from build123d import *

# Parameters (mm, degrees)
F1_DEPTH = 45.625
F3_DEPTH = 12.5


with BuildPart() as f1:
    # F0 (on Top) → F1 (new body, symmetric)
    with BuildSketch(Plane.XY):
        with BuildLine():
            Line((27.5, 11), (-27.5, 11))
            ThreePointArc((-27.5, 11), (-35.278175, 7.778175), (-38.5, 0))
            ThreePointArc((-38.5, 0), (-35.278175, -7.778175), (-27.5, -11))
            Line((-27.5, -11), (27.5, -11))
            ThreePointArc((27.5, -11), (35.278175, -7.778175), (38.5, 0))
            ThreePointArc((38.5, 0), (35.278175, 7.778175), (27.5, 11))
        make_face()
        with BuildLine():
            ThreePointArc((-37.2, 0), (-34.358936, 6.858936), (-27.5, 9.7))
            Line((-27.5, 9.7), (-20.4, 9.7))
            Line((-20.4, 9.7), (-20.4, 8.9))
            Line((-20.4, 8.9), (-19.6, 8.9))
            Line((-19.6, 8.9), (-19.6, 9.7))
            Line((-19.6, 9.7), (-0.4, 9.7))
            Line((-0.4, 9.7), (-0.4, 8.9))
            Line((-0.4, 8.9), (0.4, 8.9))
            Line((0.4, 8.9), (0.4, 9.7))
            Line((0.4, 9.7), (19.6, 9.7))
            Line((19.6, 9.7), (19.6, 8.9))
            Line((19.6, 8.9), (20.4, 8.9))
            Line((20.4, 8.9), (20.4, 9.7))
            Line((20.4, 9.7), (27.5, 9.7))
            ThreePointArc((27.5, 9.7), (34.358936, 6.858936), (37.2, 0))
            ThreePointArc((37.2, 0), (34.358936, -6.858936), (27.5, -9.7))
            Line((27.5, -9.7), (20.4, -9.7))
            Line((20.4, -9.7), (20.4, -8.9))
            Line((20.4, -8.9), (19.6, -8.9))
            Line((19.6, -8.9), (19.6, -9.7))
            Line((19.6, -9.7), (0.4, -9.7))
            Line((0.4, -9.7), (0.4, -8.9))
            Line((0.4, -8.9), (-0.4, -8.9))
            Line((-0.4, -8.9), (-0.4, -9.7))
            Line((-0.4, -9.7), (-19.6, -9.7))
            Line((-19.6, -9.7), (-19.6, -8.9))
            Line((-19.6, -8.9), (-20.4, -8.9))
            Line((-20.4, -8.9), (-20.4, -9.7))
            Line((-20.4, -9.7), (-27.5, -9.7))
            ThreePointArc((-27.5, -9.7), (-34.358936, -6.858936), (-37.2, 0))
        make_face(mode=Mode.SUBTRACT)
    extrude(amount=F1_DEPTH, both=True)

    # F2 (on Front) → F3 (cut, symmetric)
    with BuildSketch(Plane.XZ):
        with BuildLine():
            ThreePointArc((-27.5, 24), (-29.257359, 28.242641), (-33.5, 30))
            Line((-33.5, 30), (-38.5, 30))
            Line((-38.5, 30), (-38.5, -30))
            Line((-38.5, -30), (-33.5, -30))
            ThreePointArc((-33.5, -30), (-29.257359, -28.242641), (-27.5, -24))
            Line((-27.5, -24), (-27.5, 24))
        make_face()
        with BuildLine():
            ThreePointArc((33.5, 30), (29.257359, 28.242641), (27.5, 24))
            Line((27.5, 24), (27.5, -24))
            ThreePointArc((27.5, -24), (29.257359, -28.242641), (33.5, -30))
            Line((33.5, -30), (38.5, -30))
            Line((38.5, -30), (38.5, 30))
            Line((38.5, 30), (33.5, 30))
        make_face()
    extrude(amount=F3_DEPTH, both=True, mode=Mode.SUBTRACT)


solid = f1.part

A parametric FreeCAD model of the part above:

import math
import FreeCAD as App
import Part
import Sketcher
Q = App.Units.Quantity

doc = App.newDocument("Part")
body = doc.addObject("PartDesign::Body", "Body")

# Sketch on XY plane
sketch1 = body.newObject("Sketcher::SketchObject", "Sketch")
sketch1.AttachmentSupport = (doc.getObject("XY_Plane"), [""])
sketch1.MapMode = "FlatFace"
sketch1.addGeometry([
    Part.LineSegment(App.Vector(27.5, 11, 0), App.Vector(-27.5, 11, 0)),  # 0
    Part.ArcOfCircle(Part.Circle(App.Vector(-27.5, 0, 0), App.Vector(0, 0, 1), 11), math.radians(90), math.radians(180)),  # 1
    Part.ArcOfCircle(Part.Circle(App.Vector(-27.5, 0, 0), App.Vector(0, 0, 1), 11), math.radians(180), math.radians(270)),  # 2
    Part.LineSegment(App.Vector(-27.5, -11, 0), App.Vector(27.5, -11, 0)),  # 3
    Part.ArcOfCircle(Part.Circle(App.Vector(27.5, 0, 0), App.Vector(0, 0, 1), 11), math.radians(-90), math.radians(0)),  # 4
    Part.ArcOfCircle(Part.Circle(App.Vector(27.5, 0, 0), App.Vector(0, 0, 1), 11), math.radians(0), math.radians(90)),  # 5
    Part.ArcOfCircle(Part.Circle(App.Vector(-27.5, 0, 0), App.Vector(0, 0, 1), 9.7), math.radians(180), math.radians(270)),  # 6
    Part.ArcOfCircle(Part.Circle(App.Vector(-27.5, 0, 0), App.Vector(0, 0, 1), 9.7), math.radians(90), math.radians(180)),  # 7
    Part.LineSegment(App.Vector(-27.5, 9.7, 0), App.Vector(-20.4, 9.7, 0)),  # 8
    Part.LineSegment(App.Vector(-20.4, 9.7, 0), App.Vector(-20.4, 8.9, 0)),  # 9
    Part.LineSegment(App.Vector(-20.4, 8.9, 0), App.Vector(-19.6, 8.9, 0)),  # 10
    Part.LineSegment(App.Vector(-19.6, 8.9, 0), App.Vector(-19.6, 9.7, 0)),  # 11
    Part.LineSegment(App.Vector(-19.6, 9.7, 0), App.Vector(-0.4, 9.7, 0)),  # 12
    Part.LineSegment(App.Vector(-0.4, 9.7, 0), App.Vector(-0.4, 8.9, 0)),  # 13
    Part.LineSegment(App.Vector(-0.4, 8.9, 0), App.Vector(0.4, 8.9, 0)),  # 14
    Part.LineSegment(App.Vector(0.4, 8.9, 0), App.Vector(0.4, 9.7, 0)),  # 15
    Part.LineSegment(App.Vector(0.4, 9.7, 0), App.Vector(19.6, 9.7, 0)),  # 16
    Part.LineSegment(App.Vector(19.6, 9.7, 0), App.Vector(19.6, 8.9, 0)),  # 17
    Part.LineSegment(App.Vector(19.6, 8.9, 0), App.Vector(20.4, 8.9, 0)),  # 18
    Part.LineSegment(App.Vector(20.4, 8.9, 0), App.Vector(20.4, 9.7, 0)),  # 19
    Part.LineSegment(App.Vector(20.4, 9.7, 0), App.Vector(27.5, 9.7, 0)),  # 20
    Part.ArcOfCircle(Part.Circle(App.Vector(27.5, 0, 0), App.Vector(0, 0, 1), 9.7), math.radians(0), math.radians(90)),  # 21
    Part.ArcOfCircle(Part.Circle(App.Vector(27.5, 0, 0), App.Vector(0, 0, 1), 9.7), math.radians(-90), math.radians(0)),  # 22
    Part.LineSegment(App.Vector(27.5, -9.7, 0), App.Vector(20.4, -9.7, 0)),  # 23
    Part.LineSegment(App.Vector(20.4, -9.7, 0), App.Vector(20.4, -8.9, 0)),  # 24
    Part.LineSegment(App.Vector(20.4, -8.9, 0), App.Vector(19.6, -8.9, 0)),  # 25
    Part.LineSegment(App.Vector(19.6, -8.9, 0), App.Vector(19.6, -9.7, 0)),  # 26
    Part.LineSegment(App.Vector(19.6, -9.7, 0), App.Vector(0.4, -9.7, 0)),  # 27
    Part.LineSegment(App.Vector(0.4, -9.7, 0), App.Vector(0.4, -8.9, 0)),  # 28
    Part.LineSegment(App.Vector(0.4, -8.9, 0), App.Vector(-0.4, -8.9, 0)),  # 29
    Part.LineSegment(App.Vector(-0.4, -8.9, 0), App.Vector(-0.4, -9.7, 0)),  # 30
    Part.LineSegment(App.Vector(-0.4, -9.7, 0), App.Vector(-19.6, -9.7, 0)),  # 31
    Part.LineSegment(App.Vector(-19.6, -9.7, 0), App.Vector(-19.6, -8.9, 0)),  # 32
    Part.LineSegment(App.Vector(-19.6, -8.9, 0), App.Vector(-20.4, -8.9, 0)),  # 33
    Part.LineSegment(App.Vector(-20.4, -8.9, 0), App.Vector(-20.4, -9.7, 0)),  # 34
    Part.LineSegment(App.Vector(-20.4, -9.7, 0), App.Vector(-27.5, -9.7, 0)),  # 35
], False)
sketch1.addConstraint([
    Sketcher.Constraint("Tangent", 0, 2, 1, 1),
    Sketcher.Constraint("Tangent", 1, 2, 2, 1),
    Sketcher.Constraint("Tangent", 2, 2, 3, 1),
    Sketcher.Constraint("Tangent", 3, 2, 4, 1),
    Sketcher.Constraint("Tangent", 4, 2, 5, 1),
    Sketcher.Constraint("Tangent", 5, 2, 0, 1),
    Sketcher.Constraint("Tangent", 6, 1, 7, 2),
    Sketcher.Constraint("Tangent", 7, 1, 8, 1),
    Sketcher.Constraint("Coincident", 8, 2, 9, 1),
    Sketcher.Constraint("Coincident", 9, 2, 10, 1),
    Sketcher.Constraint("Coincident", 10, 2, 11, 1),
    Sketcher.Constraint("Coincident", 11, 2, 12, 1),
    Sketcher.Constraint("Coincident", 12, 2, 13, 1),
    Sketcher.Constraint("Coincident", 13, 2, 14, 1),
    Sketcher.Constraint("Coincident", 14, 2, 15, 1),
    Sketcher.Constraint("Coincident", 15, 2, 16, 1),
    Sketcher.Constraint("Coincident", 16, 2, 17, 1),
    Sketcher.Constraint("Coincident", 17, 2, 18, 1),
    Sketcher.Constraint("Coincident", 18, 2, 19, 1),
    Sketcher.Constraint("Coincident", 19, 2, 20, 1),
    Sketcher.Constraint("Tangent", 20, 2, 21, 2),
    Sketcher.Constraint("Tangent", 21, 1, 22, 2),
    Sketcher.Constraint("Tangent", 22, 1, 23, 1),
    Sketcher.Constraint("Coincident", 23, 2, 24, 1),
    Sketcher.Constraint("Coincident", 24, 2, 25, 1),
    Sketcher.Constraint("Coincident", 25, 2, 26, 1),
    Sketcher.Constraint("Coincident", 26, 2, 27, 1),
    Sketcher.Constraint("Coincident", 27, 2, 28, 1),
    Sketcher.Constraint("Coincident", 28, 2, 29, 1),
    Sketcher.Constraint("Coincident", 29, 2, 30, 1),
    Sketcher.Constraint("Coincident", 30, 2, 31, 1),
    Sketcher.Constraint("Coincident", 31, 2, 32, 1),
    Sketcher.Constraint("Coincident", 32, 2, 33, 1),
    Sketcher.Constraint("Coincident", 33, 2, 34, 1),
    Sketcher.Constraint("Coincident", 34, 2, 35, 1),
    Sketcher.Constraint("Tangent", 35, 2, 6, 2),
    Sketcher.Constraint("Horizontal", 0),
    Sketcher.Constraint("Horizontal", 3),
    Sketcher.Constraint("Horizontal", 8),
    Sketcher.Constraint("Vertical", 9),
    Sketcher.Constraint("Horizontal", 10),
    Sketcher.Constraint("Vertical", 11),
    Sketcher.Constraint("Horizontal", 12),
    Sketcher.Constraint("Vertical", 13),
    Sketcher.Constraint("Horizontal", 14),
    Sketcher.Constraint("Vertical", 15),
    Sketcher.Constraint("Horizontal", 16),
    Sketcher.Constraint("Vertical", 17),
    Sketcher.Constraint("Horizontal", 18),
    Sketcher.Constraint("Vertical", 19),
    Sketcher.Constraint("Horizontal", 20),
    Sketcher.Constraint("Horizontal", 23),
    Sketcher.Constraint("Vertical", 24),
    Sketcher.Constraint("Horizontal", 25),
    Sketcher.Constraint("Vertical", 26),
    Sketcher.Constraint("Horizontal", 27),
    Sketcher.Constraint("Vertical", 28),
    Sketcher.Constraint("Horizontal", 29),
    Sketcher.Constraint("Vertical", 30),
    Sketcher.Constraint("Horizontal", 31),
    Sketcher.Constraint("Vertical", 32),
    Sketcher.Constraint("Horizontal", 33),
    Sketcher.Constraint("Vertical", 34),
    Sketcher.Constraint("Horizontal", 35),
    Sketcher.Constraint("Coincident", 6, 3, 1, 3),
    Sketcher.Constraint("Coincident", 21, 3, 4, 3),
    Sketcher.Constraint("Equal", 1, 2),
    Sketcher.Constraint("Equal", 2, 4),
    Sketcher.Constraint("Equal", 6, 7),
    Sketcher.Constraint("Equal", 7, 21),
    Sketcher.Constraint("Equal", 21, 22),
    Sketcher.Constraint("Symmetric", 1, 3, 4, 3, -1, 1),
    Sketcher.Constraint("Symmetric", 9, 2, 24, 2, -1, 1),
    Sketcher.Constraint("Symmetric", 11, 2, 26, 2, -1, 1),
    Sketcher.Constraint("Symmetric", 13, 2, 28, 2, -1, 1),
    Sketcher.Constraint("Symmetric", 15, 2, 30, 2, -1, 1),
    Sketcher.Constraint("Symmetric", 17, 2, 32, 2, -1, 1),
    Sketcher.Constraint("Symmetric", 12, 2, 15, 2, -2),
    Sketcher.Constraint("Symmetric", 10, 2, 17, 2, -2),
    Sketcher.Constraint("PointOnObject", 1, 2, -1),
    Sketcher.Constraint("PointOnObject", 4, 2, -1),
    Sketcher.Constraint("PointOnObject", 6, 1, -1),
    Sketcher.Constraint("PointOnObject", 21, 1, -1),
    Sketcher.Constraint("Horizontal", 8, 2, 11, 2),
    Sketcher.Constraint("Horizontal", 10, 2, 13, 2),
    Sketcher.Constraint("Vertical", 19, 2, 23, 2),
    Sketcher.Constraint("Vertical", 9, 2, 33, 2),
    Sketcher.Constraint("Equal", 10, 14),
    Sketcher.Constraint("Equal", 33, 9),
    Sketcher.Constraint("Radius", 1, Q("10.999999 mm")),
    Sketcher.Constraint("Radius", 6, Q("9.699999 mm")),
    Sketcher.Constraint("DistanceX", 0, 2, 0, 1, Q("55 mm")),
    Sketcher.Constraint("DistanceX", 8, 1, 8, 2, Q("7.1 mm")),
    Sketcher.Constraint("DistanceX", 10, 1, 10, 2, Q("0.8 mm")),
])
pad1 = body.newObject("PartDesign::Pad", "Pad")
pad1.Profile = sketch1
pad1.Length = 91.25
pad1.Midplane = True

# Sketch on XZ plane
sketch2 = body.newObject("Sketcher::SketchObject", "Sketch001")
sketch2.AttachmentSupport = (doc.getObject("XZ_Plane"), [""])
sketch2.MapMode = "FlatFace"
sketch2.addGeometry([
    Part.ArcOfCircle(Part.Circle(App.Vector(-33, 24, 0), App.Vector(0, 0, 1), 6), math.radians(0), math.radians(90)),  # 0
    Part.LineSegment(App.Vector(-34, 30, 0), App.Vector(-38, 30, 0)),  # 1
    Part.LineSegment(App.Vector(-38, 30, 0), App.Vector(-38, -30, 0)),  # 2
    Part.LineSegment(App.Vector(-38, -30, 0), App.Vector(-34, -30, 0)),  # 3
    Part.ArcOfCircle(Part.Circle(App.Vector(-33, -24, 0), App.Vector(0, 0, 1), 6), math.radians(-90), math.radians(0)),  # 4
    Part.LineSegment(App.Vector(-28, -24, 0), App.Vector(-28, 24, 0)),  # 5
    Part.ArcOfCircle(Part.Circle(App.Vector(33, 24, 0), App.Vector(0, 0, 1), 6), math.radians(90), math.radians(180)),  # 6
    Part.LineSegment(App.Vector(28, 24, 0), App.Vector(28, -24, 0)),  # 7
    Part.ArcOfCircle(Part.Circle(App.Vector(33, -24, 0), App.Vector(0, 0, 1), 6), math.radians(180), math.radians(270)),  # 8
    Part.LineSegment(App.Vector(34, -30, 0), App.Vector(38, -30, 0)),  # 9
    Part.LineSegment(App.Vector(38, -30, 0), App.Vector(38, 30, 0)),  # 10
    Part.LineSegment(App.Vector(38, 30, 0), App.Vector(34, 30, 0)),  # 11
], False)
sketch2.addConstraint([
    Sketcher.Constraint("Tangent", 0, 2, 1, 1),
    Sketcher.Constraint("Coincident", 1, 2, 2, 1),
    Sketcher.Constraint("Coincident", 2, 2, 3, 1),
    Sketcher.Constraint("Tangent", 3, 2, 4, 1),
    Sketcher.Constraint("Tangent", 4, 2, 5, 1),
    Sketcher.Constraint("Tangent", 5, 2, 0, 1),
    Sketcher.Constraint("Tangent", 6, 2, 7, 1),
    Sketcher.Constraint("Tangent", 7, 2, 8, 1),
    Sketcher.Constraint("Tangent", 8, 2, 9, 1),
    Sketcher.Constraint("Coincident", 9, 2, 10, 1),
    Sketcher.Constraint("Coincident", 10, 2, 11, 1),
    Sketcher.Constraint("Tangent", 11, 2, 6, 1),
    Sketcher.Constraint("Horizontal", 1),
    Sketcher.Constraint("Vertical", 2),
    Sketcher.Constraint("Horizontal", 3),
    Sketcher.Constraint("Vertical", 5),
    Sketcher.Constraint("Vertical", 7),
    Sketcher.Constraint("Horizontal", 9),
    Sketcher.Constraint("Vertical", 10),
    Sketcher.Constraint("Horizontal", 11),
    Sketcher.Constraint("Equal", 0, 4),
    Sketcher.Constraint("Equal", 4, 6),
    Sketcher.Constraint("Equal", 6, 8),
    Sketcher.Constraint("Symmetric", 4, 3, 6, 3, -1, 1),
    Sketcher.Constraint("Symmetric", 1, 2, 9, 2, -1, 1),
    Sketcher.Constraint("Horizontal", 0, 3, 6, 3),
    Sketcher.Constraint("Radius", 0, Q("5.999999 mm")),
    Sketcher.Constraint("DistanceX", 1, 2, 1, 1, Q("5 mm")),
    Sketcher.Constraint("DistanceY", 2, 2, 2, 1, Q("60 mm")),
    Sketcher.Constraint("DistanceX", 0, 2, 6, 3, Q("66.999999 mm")),
])
pocket1 = body.newObject("PartDesign::Pocket", "Pocket")
pocket1.Profile = sketch2
pocket1.Length = 25
pocket1.Midplane = True

doc.recompute()
